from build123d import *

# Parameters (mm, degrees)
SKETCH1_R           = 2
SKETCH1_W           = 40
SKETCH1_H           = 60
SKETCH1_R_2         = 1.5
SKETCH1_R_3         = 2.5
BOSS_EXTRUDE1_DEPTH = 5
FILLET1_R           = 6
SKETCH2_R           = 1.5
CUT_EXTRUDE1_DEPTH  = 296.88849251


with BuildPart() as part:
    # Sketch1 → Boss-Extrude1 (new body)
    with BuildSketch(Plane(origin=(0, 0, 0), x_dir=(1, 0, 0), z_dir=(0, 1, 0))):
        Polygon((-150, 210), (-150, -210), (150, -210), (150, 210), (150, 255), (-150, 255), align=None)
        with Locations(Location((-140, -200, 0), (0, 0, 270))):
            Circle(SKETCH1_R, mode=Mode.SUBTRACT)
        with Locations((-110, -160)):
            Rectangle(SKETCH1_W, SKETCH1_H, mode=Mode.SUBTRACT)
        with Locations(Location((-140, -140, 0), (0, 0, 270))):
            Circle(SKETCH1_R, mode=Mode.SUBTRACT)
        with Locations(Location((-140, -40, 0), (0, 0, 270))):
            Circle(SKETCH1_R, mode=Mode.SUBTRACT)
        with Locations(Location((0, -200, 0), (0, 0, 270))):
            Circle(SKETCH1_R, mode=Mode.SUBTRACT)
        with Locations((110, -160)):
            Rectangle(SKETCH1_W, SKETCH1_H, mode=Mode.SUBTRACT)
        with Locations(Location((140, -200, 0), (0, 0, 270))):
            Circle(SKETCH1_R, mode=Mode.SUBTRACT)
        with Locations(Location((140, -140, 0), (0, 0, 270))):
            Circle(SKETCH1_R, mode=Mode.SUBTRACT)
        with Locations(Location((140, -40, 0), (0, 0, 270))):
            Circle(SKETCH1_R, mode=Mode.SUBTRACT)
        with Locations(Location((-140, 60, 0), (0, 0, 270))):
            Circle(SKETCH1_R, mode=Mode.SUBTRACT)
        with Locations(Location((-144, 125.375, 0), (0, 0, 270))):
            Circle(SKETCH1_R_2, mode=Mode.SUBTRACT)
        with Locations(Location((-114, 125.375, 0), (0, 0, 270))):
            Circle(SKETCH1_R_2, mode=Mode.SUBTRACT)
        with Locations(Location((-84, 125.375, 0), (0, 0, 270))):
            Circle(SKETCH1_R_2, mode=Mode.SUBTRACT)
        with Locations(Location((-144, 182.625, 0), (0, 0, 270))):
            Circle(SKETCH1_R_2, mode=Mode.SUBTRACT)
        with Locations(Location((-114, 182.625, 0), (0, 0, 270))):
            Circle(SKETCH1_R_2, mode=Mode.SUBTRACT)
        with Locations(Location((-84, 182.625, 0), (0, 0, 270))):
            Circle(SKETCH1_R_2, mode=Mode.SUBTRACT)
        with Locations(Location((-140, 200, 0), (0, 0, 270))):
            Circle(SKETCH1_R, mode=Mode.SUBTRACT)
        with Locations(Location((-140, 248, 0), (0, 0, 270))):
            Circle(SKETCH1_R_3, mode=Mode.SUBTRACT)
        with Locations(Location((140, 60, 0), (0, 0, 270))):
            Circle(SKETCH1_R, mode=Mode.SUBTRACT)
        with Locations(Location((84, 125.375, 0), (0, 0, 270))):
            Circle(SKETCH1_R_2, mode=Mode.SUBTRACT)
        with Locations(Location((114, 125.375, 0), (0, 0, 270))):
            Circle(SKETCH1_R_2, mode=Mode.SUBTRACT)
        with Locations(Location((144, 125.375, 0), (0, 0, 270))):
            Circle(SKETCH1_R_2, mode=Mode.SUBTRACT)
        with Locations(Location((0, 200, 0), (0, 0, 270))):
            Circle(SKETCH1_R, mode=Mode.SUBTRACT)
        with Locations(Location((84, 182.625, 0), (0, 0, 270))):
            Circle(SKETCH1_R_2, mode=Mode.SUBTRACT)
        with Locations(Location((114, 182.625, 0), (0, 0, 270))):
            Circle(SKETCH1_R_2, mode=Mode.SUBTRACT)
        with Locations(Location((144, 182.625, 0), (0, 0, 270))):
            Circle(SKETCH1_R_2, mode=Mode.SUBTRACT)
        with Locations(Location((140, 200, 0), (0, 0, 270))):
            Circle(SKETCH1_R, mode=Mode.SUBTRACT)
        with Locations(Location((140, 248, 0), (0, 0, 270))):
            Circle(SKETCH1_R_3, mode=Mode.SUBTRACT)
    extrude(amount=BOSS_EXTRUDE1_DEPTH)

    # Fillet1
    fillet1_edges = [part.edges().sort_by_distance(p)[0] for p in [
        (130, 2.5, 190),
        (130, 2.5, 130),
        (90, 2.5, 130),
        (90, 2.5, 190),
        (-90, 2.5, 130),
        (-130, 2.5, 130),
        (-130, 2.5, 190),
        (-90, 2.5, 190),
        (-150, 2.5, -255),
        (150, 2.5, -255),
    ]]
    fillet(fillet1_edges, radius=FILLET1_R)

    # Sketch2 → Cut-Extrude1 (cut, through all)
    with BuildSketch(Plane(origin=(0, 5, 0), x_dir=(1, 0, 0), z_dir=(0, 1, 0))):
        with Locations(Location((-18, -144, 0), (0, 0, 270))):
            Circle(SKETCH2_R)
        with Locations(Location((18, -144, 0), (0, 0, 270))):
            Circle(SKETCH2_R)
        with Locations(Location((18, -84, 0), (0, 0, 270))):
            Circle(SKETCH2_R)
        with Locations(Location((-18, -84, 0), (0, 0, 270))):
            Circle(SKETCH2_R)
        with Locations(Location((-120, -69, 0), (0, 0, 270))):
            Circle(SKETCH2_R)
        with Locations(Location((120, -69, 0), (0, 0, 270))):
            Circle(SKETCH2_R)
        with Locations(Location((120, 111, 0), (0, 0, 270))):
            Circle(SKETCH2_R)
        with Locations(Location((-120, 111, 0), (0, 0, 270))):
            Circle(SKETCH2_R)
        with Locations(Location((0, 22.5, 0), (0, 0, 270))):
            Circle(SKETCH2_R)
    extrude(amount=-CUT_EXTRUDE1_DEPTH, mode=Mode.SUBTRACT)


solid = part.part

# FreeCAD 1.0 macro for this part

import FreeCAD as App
import Part
import Sketcher
Q = App.Units.Quantity


def edges_at(feature, points):
    """Names of the edges that pass closest to the given points."""
    edges = feature.Shape.Edges
    near = lambda p: min(range(len(edges)), key=lambda i: edges[i].distToShape(Part.Vertex(*p))[0])
    return sorted({f"Edge{near(p) + 1}" for p in points})

doc = App.newDocument("Part")
body = doc.addObject("PartDesign::Body", "Body")

# Sketch on XZ plane
sketch1 = doc.addObject("Sketcher::SketchObject", "Sketch")
body.addObject(sketch1)
sketch1.AttachmentSupport = (doc.XZ_Plane, [""])
sketch1.MapMode = "FlatFace"
sketch1.addGeometry([
    Part.LineSegment(App.Vector(-150, 210, 0), App.Vector(150, 210, 0)),  # 0
    Part.LineSegment(App.Vector(150, 210, 0), App.Vector(150, -255, 0)),  # 1
    Part.LineSegment(App.Vector(150, -255, 0), App.Vector(-150, -255, 0)),  # 2
    Part.LineSegment(App.Vector(-150, -255, 0), App.Vector(-150, 210, 0)),  # 3
    Part.Circle(App.Vector(-140, 200, 0), App.Vector(0, 0, 1), 2),  # 4
    Part.LineSegment(App.Vector(-90, 190, 0), App.Vector(-130, 190, 0)),  # 5
    Part.LineSegment(App.Vector(-130, 190, 0), App.Vector(-130, 130, 0)),  # 6
    Part.LineSegment(App.Vector(-130, 130, 0), App.Vector(-90, 130, 0)),  # 7
    Part.LineSegment(App.Vector(-90, 130, 0), App.Vector(-90, 190, 0)),  # 8
    Part.Circle(App.Vector(-140, 140, 0), App.Vector(0, 0, 1), 2),  # 9
    Part.Circle(App.Vector(-140, 40, 0), App.Vector(0, 0, 1), 2),  # 10
    Part.Circle(App.Vector(0, 200, 0), App.Vector(0, 0, 1), 2),  # 11
    Part.Circle(App.Vector(140, 200, 0), App.Vector(0, 0, 1), 2),  # 12
    Part.LineSegment(App.Vector(130, 190, 0), App.Vector(90, 190, 0)),  # 13
    Part.LineSegment(App.Vector(90, 190, 0), App.Vector(90, 130, 0)),  # 14
    Part.LineSegment(App.Vector(90, 130, 0), App.Vector(130, 130, 0)),  # 15
    Part.LineSegment(App.Vector(130, 130, 0), App.Vector(130, 190, 0)),  # 16
    Part.Circle(App.Vector(140, 140, 0), App.Vector(0, 0, 1), 2),  # 17
    Part.Circle(App.Vector(140, 40, 0), App.Vector(0, 0, 1), 2),  # 18
    Part.Circle(App.Vector(-140, -60, 0), App.Vector(0, 0, 1), 2),  # 19
    Part.Circle(App.Vector(-144, -125.375, 0), App.Vector(0, 0, 1), 1.5),  # 20
    Part.Circle(App.Vector(-114, -125.375, 0), App.Vector(0, 0, 1), 1.5),  # 21
    Part.Circle(App.Vector(-84, -125.375, 0), App.Vector(0, 0, 1), 1.5),  # 22
    Part.Circle(App.Vector(-144, -182.625, 0), App.Vector(0, 0, 1), 1.5),  # 23
    Part.Circle(App.Vector(-114, -182.625, 0), App.Vector(0, 0, 1), 1.5),  # 24
    Part.Circle(App.Vector(-84, -182.625, 0), App.Vector(0, 0, 1), 1.5),  # 25
    Part.Circle(App.Vector(-140, -200, 0), App.Vector(0, 0, 1), 2),  # 26
    Part.Circle(App.Vector(-140, -248, 0), App.Vector(0, 0, 1), 2.5),  # 27
    Part.Circle(App.Vector(140, -60, 0), App.Vector(0, 0, 1), 2),  # 28
    Part.Circle(App.Vector(84, -125.375, 0), App.Vector(0, 0, 1), 1.5),  # 29
    Part.Circle(App.Vector(114, -125.375, 0), App.Vector(0, 0, 1), 1.5),  # 30
    Part.Circle(App.Vector(144, -125.375, 0), App.Vector(0, 0, 1), 1.5),  # 31
    Part.Circle(App.Vector(0, -200, 0), App.Vector(0, 0, 1), 2),  # 32
    Part.Circle(App.Vector(84, -182.625, 0), App.Vector(0, 0, 1), 1.5),  # 33
    Part.Circle(App.Vector(114, -182.625, 0), App.Vector(0, 0, 1), 1.5),  # 34
    Part.Circle(App.Vector(144, -182.625, 0), App.Vector(0, 0, 1), 1.5),  # 35
    Part.Circle(App.Vector(140, -200, 0), App.Vector(0, 0, 1), 2),  # 36
    Part.Circle(App.Vector(140, -248, 0), App.Vector(0, 0, 1), 2.5),  # 37
], False)
sketch1.addConstraint([
    Sketcher.Constraint("Coincident", 0, 2, 1, 1),
    Sketcher.Constraint("Coincident", 1, 2, 2, 1),
    Sketcher.Constraint("Coincident", 2, 2, 3, 1),
    Sketcher.Constraint("Coincident", 3, 2, 0, 1),
    Sketcher.Constraint("Coincident", 5, 2, 6, 1),
    Sketcher.Constraint("Coincident", 6, 2, 7, 1),
    Sketcher.Constraint("Coincident", 7, 2, 8, 1),
    Sketcher.Constraint("Coincident", 8, 2, 5, 1),
    Sketcher.Constraint("Coincident", 13, 2, 14, 1),
    Sketcher.Constraint("Coincident", 14, 2, 15, 1),
    Sketcher.Constraint("Coincident", 15, 2, 16, 1),
    Sketcher.Constraint("Coincident", 16, 2, 13, 1),
    Sketcher.Constraint("Horizontal", 0),
    Sketcher.Constraint("Vertical", 1),
    Sketcher.Constraint("Horizontal", 2),
    Sketcher.Constraint("Vertical", 3),
    Sketcher.Constraint("Horizontal", 5),
    Sketcher.Constraint("Vertical", 6),
    Sketcher.Constraint("Horizontal", 7),
    Sketcher.Constraint("Vertical", 8),
    Sketcher.Constraint("Horizontal", 13),
    Sketcher.Constraint("Vertical", 14),
    Sketcher.Constraint("Horizontal", 15),
    Sketcher.Constraint("Vertical", 16),
    Sketcher.Constraint("Equal", 4, 9),
    Sketcher.Constraint("Equal", 9, 10),
    Sketcher.Constraint("Equal", 10, 11),
    Sketcher.Constraint("Equal", 11, 12),
    Sketcher.Constraint("Equal", 12, 17),
    Sketcher.Constraint("Equal", 17, 18),
    Sketcher.Constraint("Equal", 18, 19),
    Sketcher.Constraint("Equal", 20, 21),
    Sketcher.Constraint("Equal", 21, 22),
    Sketcher.Constraint("Equal", 22, 23),
    Sketcher.Constraint("Equal", 23, 24),
    Sketcher.Constraint("Equal", 24, 25),
    Sketcher.Constraint("Equal", 19, 26),
    Sketcher.Constraint("Equal", 26, 28),
    Sketcher.Constraint("Equal", 25, 29),
    Sketcher.Constraint("Equal", 29, 30),
    Sketcher.Constraint("Equal", 30, 31),
    Sketcher.Constraint("Equal", 28, 32),
    Sketcher.Constraint("Equal", 31, 33),
    Sketcher.Constraint("Equal", 33, 34),
    Sketcher.Constraint("Equal", 34, 35),
    Sketcher.Constraint("Equal", 32, 36),
    Sketcher.Constraint("Equal", 27, 37),
    Sketcher.Constraint("Symmetric", 12, 3, 26, 3, -1, 1),
    Sketcher.Constraint("Symmetric", 11, 3, 32, 3, -1, 1),
    Sketcher.Constraint("Symmetric", 4, 3, 36, 3, -1, 1),
    Sketcher.Constraint("Symmetric", 4, 3, 12, 3, -2),
    Sketcher.Constraint("Symmetric", 9, 3, 17, 3, -2),
    Sketcher.Constraint("Symmetric", 10, 3, 18, 3, -2),
    Sketcher.Constraint("Symmetric", 19, 3, 28, 3, -2),
    Sketcher.Constraint("Symmetric", 22, 3, 29, 3, -2),
    Sketcher.Constraint("Symmetric", 21, 3, 30, 3, -2),
    Sketcher.Constraint("Symmetric", 20, 3, 31, 3, -2),
    Sketcher.Constraint("Symmetric", 25, 3, 33, 3, -2),
    Sketcher.Constraint("Symmetric", 24, 3, 34, 3, -2),
    Sketcher.Constraint("Symmetric", 23, 3, 35, 3, -2),
    Sketcher.Constraint("Symmetric", 27, 3, 37, 3, -2),
    Sketcher.Constraint("Symmetric", 8, 2, 13, 2, -2),
    Sketcher.Constraint("Symmetric", 6, 2, 15, 2, -2),
    Sketcher.Constraint("PointOnObject", 11, 3, -2),
    Sketcher.Constraint("Horizontal", 4, 3, 11, 3),
    Sketcher.Constraint("Horizontal", 20, 3, 21, 3),
    Sketcher.Constraint("Horizontal", 21, 3, 22, 3),
    Sketcher.Constraint("Horizontal", 23, 3, 24, 3),
    Sketcher.Constraint("Horizontal", 24, 3, 25, 3),
    Sketcher.Constraint("Vertical", 4, 3, 9, 3),
    Sketcher.Constraint("Vertical", 9, 3, 10, 3),
    Sketcher.Constraint("Vertical", 10, 3, 19, 3),
    Sketcher.Constraint("Vertical", 20, 3, 23, 3),
    Sketcher.Constraint("Vertical", 21, 3, 24, 3),
    Sketcher.Constraint("Vertical", 22, 3, 25, 3),
    Sketcher.Constraint("Vertical", 26, 3, 27, 3),
    Sketcher.Constraint("Diameter", 4, Q("4 mm")),
    Sketcher.Constraint("Diameter", 20, Q("3 mm")),
    Sketcher.Constraint("Diameter", 27, Q("5 mm")),
    Sketcher.Constraint("DistanceX", 0, 1, 0, 2, Q("300 mm")),
    Sketcher.Constraint("DistanceX", 5, 2, 5, 1, Q("40 mm")),
    Sketcher.Constraint("DistanceY", 1, 2, 1, 1, Q("465 mm")),
    Sketcher.Constraint("DistanceY", 6, 2, 6, 1, Q("60 mm")),
    Sketcher.Constraint("DistanceX", 4, 3, -1, 1, Q("140 mm")),
    Sketcher.Constraint("DistanceY", -1, 1, 4, 3, Q("200 mm")),
    Sketcher.Constraint("DistanceY", -1, 1, 9, 3, Q("140 mm")),
    Sketcher.Constraint("DistanceY", -1, 1, 10, 3, Q("40 mm")),
    Sketcher.Constraint("DistanceY", 19, 3, -1, 1, Q("60 mm")),
    Sketcher.Constraint("DistanceX", 20, 3, -1, 1, Q("144 mm")),
    Sketcher.Constraint("DistanceX", 21, 3, -1, 1, Q("114 mm")),
    Sketcher.Constraint("DistanceX", 22, 3, -1, 1, Q("84 mm")),
    Sketcher.Constraint("DistanceY", 27, 3, -1, 1, Q("248 mm")),
    Sketcher.Constraint("DistanceX", -1, 1, 0, 2, Q("150 mm")),
    Sketcher.Constraint("DistanceY", -1, 1, 0, 2, Q("210 mm")),
    Sketcher.Constraint("DistanceX", 5, 2, -1, 1, Q("130 mm")),
    Sketcher.Constraint("DistanceY", -1, 1, 5, 2, Q("190 mm")),
    Sketcher.Constraint("DistanceY", 23, 3, 20, 3, Q("57.25 mm")),
    Sketcher.Constraint("DistanceY", 20, 3, -1, 1, Q("125.375 mm")),
])
pad1 = doc.addObject("PartDesign::Pad", "Pad")
body.addObject(pad1)
pad1.Profile = sketch1
pad1.Length = 5
pad1.Reversed = True
doc.recompute()

fillet = doc.addObject("PartDesign::Fillet", "Fillet")
body.addObject(fillet)
fillet.Base = (pad1, edges_at(pad1, [
    (130, 2.5, 190),
    (130, 2.5, 130),
    (90, 2.5, 130),
    (90, 2.5, 190),
    (-90, 2.5, 130),
    (-130, 2.5, 130),
    (-130, 2.5, 190),
    (-90, 2.5, 190),
    (-150, 2.5, -255),
    (150, 2.5, -255),
]))
fillet.Radius = 6

# Sketch on XZ plane
sketch2 = doc.addObject("Sketcher::SketchObject", "Sketch001")
body.addObject(sketch2)
sketch2.AttachmentSupport = (doc.XZ_Plane, [""])
sketch2.MapMode = "FlatFace"
sketch2.AttachmentOffset = App.Placement(App.Vector(0, 0, -5), App.Rotation())
sketch2.addGeometry([
    Part.Circle(App.Vector(-18, 144, 0), App.Vector(0, 0, 1), 1.5),  # 0
    Part.Circle(App.Vector(18, 144, 0), App.Vector(0, 0, 1), 1.5),  # 1
    Part.Circle(App.Vector(18, 84, 0), App.Vector(0, 0, 1), 1.5),  # 2
    Part.Circle(App.Vector(-18, 84, 0), App.Vector(0, 0, 1), 1.5),  # 3
    Part.Circle(App.Vector(-120, 69, 0), App.Vector(0, 0, 1), 1.5),  # 4
    Part.Circle(App.Vector(120, 69, 0), App.Vector(0, 0, 1), 1.5),  # 5
    Part.Circle(App.Vector(120, -111, 0), App.Vector(0, 0, 1), 1.5),  # 6
    Part.Circle(App.Vector(-120, -111, 0), App.Vector(0, 0, 1), 1.5),  # 7
    Part.Circle(App.Vector(0, -22.5, 0), App.Vector(0, 0, 1), 1.5),  # 8
], False)
sketch2.addConstraint([
    Sketcher.Constraint("Equal", 0, 1),
    Sketcher.Constraint("Equal", 1, 2),
    Sketcher.Constraint("Equal", 2, 3),
    Sketcher.Constraint("Equal", 3, 4),
    Sketcher.Constraint("Equal", 4, 5),
    Sketcher.Constraint("Equal", 5, 6),
    Sketcher.Constraint("Equal", 6, 7),
    Sketcher.Constraint("Equal", 7, 8),
    Sketcher.Constraint("Symmetric", 0, 3, 1, 3, -2),
    Sketcher.Constraint("Symmetric", 2, 3, 3, 3, -2),
    Sketcher.Constraint("Symmetric", 4, 3, 5, 3, -2),
    Sketcher.Constraint("Symmetric", 6, 3, 7, 3, -2),
    Sketcher.Constraint("PointOnObject", 8, 3, -2),
    Sketcher.Constraint("Vertical", 1, 3, 2, 3),
    Sketcher.Constraint("Vertical", 5, 3, 6, 3),
    Sketcher.Constraint("Diameter", 0, Q("3 mm")),
    Sketcher.Constraint("DistanceX", 0, 3, -1, 1, Q("18 mm")),
    Sketcher.Constraint("DistanceY", -1, 1, 0, 3, Q("144 mm")),
    Sketcher.Constraint("DistanceY", -1, 1, 2, 3, Q("84 mm")),
    Sketcher.Constraint("DistanceX", 4, 3, -1, 1, Q("120 mm")),
    Sketcher.Constraint("DistanceY", -1, 1, 4, 3, Q("69 mm")),
    Sketcher.Constraint("DistanceY", 6, 3, -1, 1, Q("111 mm")),
    Sketcher.Constraint("DistanceY", 8, 3, -1, 1, Q("22.5 mm")),
])
pocket1 = doc.addObject("PartDesign::Pocket", "Pocket")
body.addObject(pocket1)
pocket1.Profile = sketch2
pocket1.Type = "ThroughAll"
pocket1.Reversed = True

doc.recompute()
